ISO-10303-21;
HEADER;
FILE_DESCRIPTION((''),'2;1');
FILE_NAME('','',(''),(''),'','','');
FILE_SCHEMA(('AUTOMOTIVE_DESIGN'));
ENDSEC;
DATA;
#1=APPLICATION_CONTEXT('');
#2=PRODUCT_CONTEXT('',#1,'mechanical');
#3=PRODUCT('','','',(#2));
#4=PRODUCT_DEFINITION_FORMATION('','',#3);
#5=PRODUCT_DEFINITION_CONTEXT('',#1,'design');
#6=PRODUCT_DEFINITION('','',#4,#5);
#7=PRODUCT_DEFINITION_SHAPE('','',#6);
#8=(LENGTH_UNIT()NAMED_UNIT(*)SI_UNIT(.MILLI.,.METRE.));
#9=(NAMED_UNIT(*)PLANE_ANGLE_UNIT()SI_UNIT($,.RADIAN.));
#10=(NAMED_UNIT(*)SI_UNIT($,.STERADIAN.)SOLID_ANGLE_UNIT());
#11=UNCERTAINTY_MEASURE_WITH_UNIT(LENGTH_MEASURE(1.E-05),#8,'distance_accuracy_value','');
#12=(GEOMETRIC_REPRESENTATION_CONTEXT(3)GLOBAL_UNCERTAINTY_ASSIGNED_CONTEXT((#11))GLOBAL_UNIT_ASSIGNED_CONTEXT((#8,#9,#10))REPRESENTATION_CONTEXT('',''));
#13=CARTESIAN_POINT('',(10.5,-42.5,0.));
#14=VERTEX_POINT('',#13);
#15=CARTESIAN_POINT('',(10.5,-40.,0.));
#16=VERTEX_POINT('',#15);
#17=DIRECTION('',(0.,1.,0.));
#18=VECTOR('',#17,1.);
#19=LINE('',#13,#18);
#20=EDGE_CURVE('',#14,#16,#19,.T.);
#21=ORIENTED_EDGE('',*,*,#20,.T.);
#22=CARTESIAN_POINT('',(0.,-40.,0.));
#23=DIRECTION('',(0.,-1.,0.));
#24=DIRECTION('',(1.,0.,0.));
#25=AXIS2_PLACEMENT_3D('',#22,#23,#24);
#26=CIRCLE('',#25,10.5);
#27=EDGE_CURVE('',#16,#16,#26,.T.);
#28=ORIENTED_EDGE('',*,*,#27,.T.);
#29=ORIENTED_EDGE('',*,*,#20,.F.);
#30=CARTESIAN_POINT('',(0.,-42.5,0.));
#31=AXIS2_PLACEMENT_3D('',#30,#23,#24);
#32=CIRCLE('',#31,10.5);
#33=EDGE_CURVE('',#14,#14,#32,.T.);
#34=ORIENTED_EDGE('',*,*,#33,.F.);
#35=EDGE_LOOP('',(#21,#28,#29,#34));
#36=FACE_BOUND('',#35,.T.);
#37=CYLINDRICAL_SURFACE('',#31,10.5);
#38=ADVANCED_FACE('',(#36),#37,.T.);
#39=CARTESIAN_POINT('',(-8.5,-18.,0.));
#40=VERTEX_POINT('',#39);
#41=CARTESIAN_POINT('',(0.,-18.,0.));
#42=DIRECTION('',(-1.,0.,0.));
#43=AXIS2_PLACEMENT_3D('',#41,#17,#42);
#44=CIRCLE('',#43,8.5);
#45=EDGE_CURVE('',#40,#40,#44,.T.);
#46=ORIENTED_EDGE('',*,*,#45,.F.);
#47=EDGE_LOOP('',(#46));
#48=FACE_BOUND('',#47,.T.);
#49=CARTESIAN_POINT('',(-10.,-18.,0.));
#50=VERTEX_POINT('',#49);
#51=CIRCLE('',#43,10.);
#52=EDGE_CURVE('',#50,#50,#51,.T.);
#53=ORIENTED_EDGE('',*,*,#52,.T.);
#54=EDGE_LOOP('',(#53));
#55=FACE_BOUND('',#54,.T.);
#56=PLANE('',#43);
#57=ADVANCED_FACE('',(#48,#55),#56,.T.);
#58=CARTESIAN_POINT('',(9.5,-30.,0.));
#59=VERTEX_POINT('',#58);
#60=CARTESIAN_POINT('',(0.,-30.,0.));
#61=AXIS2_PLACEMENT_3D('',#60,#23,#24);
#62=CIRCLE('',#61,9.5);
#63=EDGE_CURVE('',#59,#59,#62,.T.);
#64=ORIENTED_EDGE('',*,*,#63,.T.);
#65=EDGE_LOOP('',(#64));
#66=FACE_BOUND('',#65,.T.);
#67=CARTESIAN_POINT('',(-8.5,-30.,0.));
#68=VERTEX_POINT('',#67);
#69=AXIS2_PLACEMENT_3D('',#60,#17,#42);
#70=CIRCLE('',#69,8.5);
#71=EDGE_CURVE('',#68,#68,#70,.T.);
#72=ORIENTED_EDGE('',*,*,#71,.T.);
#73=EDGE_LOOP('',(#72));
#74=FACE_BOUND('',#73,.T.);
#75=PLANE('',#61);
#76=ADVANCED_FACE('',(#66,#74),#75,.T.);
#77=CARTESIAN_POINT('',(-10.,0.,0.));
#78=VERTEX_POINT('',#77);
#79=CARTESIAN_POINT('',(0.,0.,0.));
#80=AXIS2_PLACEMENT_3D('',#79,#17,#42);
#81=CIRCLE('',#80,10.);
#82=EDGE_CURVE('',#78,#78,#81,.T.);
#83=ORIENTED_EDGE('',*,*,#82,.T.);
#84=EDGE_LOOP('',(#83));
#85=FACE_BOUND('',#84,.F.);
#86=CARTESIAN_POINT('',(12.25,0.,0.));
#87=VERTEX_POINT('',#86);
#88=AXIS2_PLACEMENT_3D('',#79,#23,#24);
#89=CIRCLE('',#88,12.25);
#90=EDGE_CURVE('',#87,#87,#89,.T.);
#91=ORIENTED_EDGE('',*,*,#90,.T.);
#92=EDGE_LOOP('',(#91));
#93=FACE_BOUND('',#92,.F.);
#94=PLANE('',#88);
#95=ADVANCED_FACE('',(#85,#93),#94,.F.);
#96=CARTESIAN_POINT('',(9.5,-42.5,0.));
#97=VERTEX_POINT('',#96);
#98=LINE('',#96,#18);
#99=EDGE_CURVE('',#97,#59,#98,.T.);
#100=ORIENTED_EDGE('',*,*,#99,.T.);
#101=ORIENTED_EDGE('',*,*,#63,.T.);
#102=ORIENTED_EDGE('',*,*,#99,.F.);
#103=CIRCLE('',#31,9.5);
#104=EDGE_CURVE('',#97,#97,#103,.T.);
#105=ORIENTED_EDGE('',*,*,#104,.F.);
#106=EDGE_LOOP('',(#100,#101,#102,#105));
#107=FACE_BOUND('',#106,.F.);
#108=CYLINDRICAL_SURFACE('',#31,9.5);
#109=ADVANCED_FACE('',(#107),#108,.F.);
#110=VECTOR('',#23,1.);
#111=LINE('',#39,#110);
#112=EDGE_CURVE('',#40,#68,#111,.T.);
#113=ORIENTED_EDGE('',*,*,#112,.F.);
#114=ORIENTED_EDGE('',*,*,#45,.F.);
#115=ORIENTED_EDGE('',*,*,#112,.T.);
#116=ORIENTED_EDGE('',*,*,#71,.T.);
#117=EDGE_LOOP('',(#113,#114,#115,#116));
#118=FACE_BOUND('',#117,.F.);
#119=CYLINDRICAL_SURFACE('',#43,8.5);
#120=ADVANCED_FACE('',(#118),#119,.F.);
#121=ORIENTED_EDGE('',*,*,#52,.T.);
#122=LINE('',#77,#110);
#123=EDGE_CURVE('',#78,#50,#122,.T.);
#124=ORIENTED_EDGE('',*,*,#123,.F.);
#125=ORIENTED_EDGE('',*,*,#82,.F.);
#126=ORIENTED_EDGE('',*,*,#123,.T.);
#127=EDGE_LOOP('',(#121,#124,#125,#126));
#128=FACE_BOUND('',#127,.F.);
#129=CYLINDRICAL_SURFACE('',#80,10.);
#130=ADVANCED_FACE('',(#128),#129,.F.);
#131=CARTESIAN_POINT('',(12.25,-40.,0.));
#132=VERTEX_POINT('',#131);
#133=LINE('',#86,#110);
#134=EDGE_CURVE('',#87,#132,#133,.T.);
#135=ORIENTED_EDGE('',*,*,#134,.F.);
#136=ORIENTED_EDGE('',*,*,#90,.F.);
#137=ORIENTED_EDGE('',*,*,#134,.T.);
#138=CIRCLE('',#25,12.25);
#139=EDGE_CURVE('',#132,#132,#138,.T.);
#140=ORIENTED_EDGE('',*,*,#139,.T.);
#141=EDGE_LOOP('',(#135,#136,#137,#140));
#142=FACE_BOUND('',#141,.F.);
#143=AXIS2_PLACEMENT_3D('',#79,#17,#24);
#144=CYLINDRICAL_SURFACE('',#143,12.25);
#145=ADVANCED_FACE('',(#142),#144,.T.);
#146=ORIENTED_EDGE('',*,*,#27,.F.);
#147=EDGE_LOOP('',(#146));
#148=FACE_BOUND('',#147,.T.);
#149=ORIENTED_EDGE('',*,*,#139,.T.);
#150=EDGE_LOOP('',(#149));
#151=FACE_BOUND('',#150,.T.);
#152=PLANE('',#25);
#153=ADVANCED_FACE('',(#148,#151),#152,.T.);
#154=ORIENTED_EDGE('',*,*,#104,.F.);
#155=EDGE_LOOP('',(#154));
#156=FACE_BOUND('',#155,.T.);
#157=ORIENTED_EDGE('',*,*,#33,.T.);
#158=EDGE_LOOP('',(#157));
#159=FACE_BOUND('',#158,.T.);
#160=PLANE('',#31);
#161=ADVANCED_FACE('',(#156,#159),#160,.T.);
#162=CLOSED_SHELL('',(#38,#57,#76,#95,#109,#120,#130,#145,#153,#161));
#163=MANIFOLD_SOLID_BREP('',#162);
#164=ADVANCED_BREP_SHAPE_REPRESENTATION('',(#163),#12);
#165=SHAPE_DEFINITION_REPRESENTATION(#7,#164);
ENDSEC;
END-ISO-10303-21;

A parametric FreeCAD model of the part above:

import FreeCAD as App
import Part
import Sketcher

doc = App.newDocument("Part")
body = doc.addObject("PartDesign::Body", "Body")

sketch1 = doc.addObject("Sketcher::SketchObject", "Sketch")
body.addObject(sketch1)
sketch1.AttachmentSupport = (doc.XZ_Plane, [""])
sketch1.MapMode = "FlatFace"
sketch1.addGeometry(Part.Circle(App.Vector(0, 0, 0), App.Vector(0, 0, 1), 12), False)
sketch1.addConstraint([
    Sketcher.Constraint("Coincident", 0, 3, -1, 1),
    Sketcher.Constraint("Diameter", 0, 24.5),
])
pad1 = doc.addObject("PartDesign::Pad", "Pad")
body.addObject(pad1)
pad1.Profile = sketch1
pad1.Length = 42.5

sketch2 = doc.addObject("Sketcher::SketchObject", "Sketch001")
body.addObject(sketch2)
sketch2.AttachmentSupport = (doc.XZ_Plane, [""])
sketch2.MapMode = "FlatFace"
sketch2.AttachmentOffset = App.Placement(App.Vector(0, 0, 42.5), App.Rotation())
sketch2.addGeometry([
    Part.Circle(App.Vector(0, 0, 0), App.Vector(0, 0, 1), 12),
    Part.Circle(App.Vector(0, 0, 0), App.Vector(0, 0, 1), 10),
], False)
sketch2.addConstraint([
    Sketcher.Constraint("Coincident", 0, 3, -1, 1),
    Sketcher.Constraint("Coincident", 1, 3, -1, 1),
    Sketcher.Constraint("Diameter", 1, 21.0),
    Sketcher.Constraint("Diameter", 0, 24.5),
])
pocket1 = doc.addObject("PartDesign::Pocket", "Pocket")
body.addObject(pocket1)
pocket1.Profile = sketch2
pocket1.Length = 2.5

sketch3 = doc.addObject("Sketcher::SketchObject", "Sketch002")
body.addObject(sketch3)
sketch3.AttachmentSupport = (doc.XZ_Plane, [""])
sketch3.MapMode = "FlatFace"
sketch3.AttachmentOffset = App.Placement(App.Vector(0, 0, 42.5), App.Rotation())
sketch3.addGeometry(Part.Circle(App.Vector(0, 0, 0), App.Vector(0, 0, 1), 10), False)
sketch3.addConstraint([
    Sketcher.Constraint("Coincident", 0, 3, -1, 1),
    Sketcher.Constraint("Diameter", 0, 19.0),
])
pocket2 = doc.addObject("PartDesign::Pocket", "Pocket001")
body.addObject(pocket2)
pocket2.Profile = sketch3
pocket2.Length = 12.5

sketch4 = doc.addObject("Sketcher::SketchObject", "Sketch003")
body.addObject(sketch4)
sketch4.AttachmentSupport = (doc.XZ_Plane, [""])
sketch4.MapMode = "FlatFace"
sketch4.addGeometry(Part.Circle(App.Vector(0, 0, 0), App.Vector(0, 0, 1), 10), False)
sketch4.addConstraint([
    Sketcher.Constraint("Coincident", 0, 3, -1, 1),
    Sketcher.Constraint("Diameter", 0, 20.0),
])
pocket3 = doc.addObject("PartDesign::Pocket", "Pocket002")
body.addObject(pocket3)
pocket3.Profile = sketch4
pocket3.Length = 18
pocket3.Reversed = True

sketch5 = doc.addObject("Sketcher::SketchObject", "Sketch004")
body.addObject(sketch5)
sketch5.AttachmentSupport = (doc.XZ_Plane, [""])
sketch5.MapMode = "FlatFace"
sketch5.AttachmentOffset = App.Placement(App.Vector(0, 0, 18), App.Rotation())
sketch5.addGeometry(Part.Circle(App.Vector(0, 0, 0), App.Vector(0, 0, 1), 8), False)
sketch5.addConstraint([
    Sketcher.Constraint("Coincident", 0, 3, -1, 1),
    Sketcher.Constraint("Diameter", 0, 17.0),
])
pocket4 = doc.addObject("PartDesign::Pocket", "Pocket003")
body.addObject(pocket4)
pocket4.Profile = sketch5
pocket4.Length = 25
pocket4.Reversed = True

doc.recompute()
